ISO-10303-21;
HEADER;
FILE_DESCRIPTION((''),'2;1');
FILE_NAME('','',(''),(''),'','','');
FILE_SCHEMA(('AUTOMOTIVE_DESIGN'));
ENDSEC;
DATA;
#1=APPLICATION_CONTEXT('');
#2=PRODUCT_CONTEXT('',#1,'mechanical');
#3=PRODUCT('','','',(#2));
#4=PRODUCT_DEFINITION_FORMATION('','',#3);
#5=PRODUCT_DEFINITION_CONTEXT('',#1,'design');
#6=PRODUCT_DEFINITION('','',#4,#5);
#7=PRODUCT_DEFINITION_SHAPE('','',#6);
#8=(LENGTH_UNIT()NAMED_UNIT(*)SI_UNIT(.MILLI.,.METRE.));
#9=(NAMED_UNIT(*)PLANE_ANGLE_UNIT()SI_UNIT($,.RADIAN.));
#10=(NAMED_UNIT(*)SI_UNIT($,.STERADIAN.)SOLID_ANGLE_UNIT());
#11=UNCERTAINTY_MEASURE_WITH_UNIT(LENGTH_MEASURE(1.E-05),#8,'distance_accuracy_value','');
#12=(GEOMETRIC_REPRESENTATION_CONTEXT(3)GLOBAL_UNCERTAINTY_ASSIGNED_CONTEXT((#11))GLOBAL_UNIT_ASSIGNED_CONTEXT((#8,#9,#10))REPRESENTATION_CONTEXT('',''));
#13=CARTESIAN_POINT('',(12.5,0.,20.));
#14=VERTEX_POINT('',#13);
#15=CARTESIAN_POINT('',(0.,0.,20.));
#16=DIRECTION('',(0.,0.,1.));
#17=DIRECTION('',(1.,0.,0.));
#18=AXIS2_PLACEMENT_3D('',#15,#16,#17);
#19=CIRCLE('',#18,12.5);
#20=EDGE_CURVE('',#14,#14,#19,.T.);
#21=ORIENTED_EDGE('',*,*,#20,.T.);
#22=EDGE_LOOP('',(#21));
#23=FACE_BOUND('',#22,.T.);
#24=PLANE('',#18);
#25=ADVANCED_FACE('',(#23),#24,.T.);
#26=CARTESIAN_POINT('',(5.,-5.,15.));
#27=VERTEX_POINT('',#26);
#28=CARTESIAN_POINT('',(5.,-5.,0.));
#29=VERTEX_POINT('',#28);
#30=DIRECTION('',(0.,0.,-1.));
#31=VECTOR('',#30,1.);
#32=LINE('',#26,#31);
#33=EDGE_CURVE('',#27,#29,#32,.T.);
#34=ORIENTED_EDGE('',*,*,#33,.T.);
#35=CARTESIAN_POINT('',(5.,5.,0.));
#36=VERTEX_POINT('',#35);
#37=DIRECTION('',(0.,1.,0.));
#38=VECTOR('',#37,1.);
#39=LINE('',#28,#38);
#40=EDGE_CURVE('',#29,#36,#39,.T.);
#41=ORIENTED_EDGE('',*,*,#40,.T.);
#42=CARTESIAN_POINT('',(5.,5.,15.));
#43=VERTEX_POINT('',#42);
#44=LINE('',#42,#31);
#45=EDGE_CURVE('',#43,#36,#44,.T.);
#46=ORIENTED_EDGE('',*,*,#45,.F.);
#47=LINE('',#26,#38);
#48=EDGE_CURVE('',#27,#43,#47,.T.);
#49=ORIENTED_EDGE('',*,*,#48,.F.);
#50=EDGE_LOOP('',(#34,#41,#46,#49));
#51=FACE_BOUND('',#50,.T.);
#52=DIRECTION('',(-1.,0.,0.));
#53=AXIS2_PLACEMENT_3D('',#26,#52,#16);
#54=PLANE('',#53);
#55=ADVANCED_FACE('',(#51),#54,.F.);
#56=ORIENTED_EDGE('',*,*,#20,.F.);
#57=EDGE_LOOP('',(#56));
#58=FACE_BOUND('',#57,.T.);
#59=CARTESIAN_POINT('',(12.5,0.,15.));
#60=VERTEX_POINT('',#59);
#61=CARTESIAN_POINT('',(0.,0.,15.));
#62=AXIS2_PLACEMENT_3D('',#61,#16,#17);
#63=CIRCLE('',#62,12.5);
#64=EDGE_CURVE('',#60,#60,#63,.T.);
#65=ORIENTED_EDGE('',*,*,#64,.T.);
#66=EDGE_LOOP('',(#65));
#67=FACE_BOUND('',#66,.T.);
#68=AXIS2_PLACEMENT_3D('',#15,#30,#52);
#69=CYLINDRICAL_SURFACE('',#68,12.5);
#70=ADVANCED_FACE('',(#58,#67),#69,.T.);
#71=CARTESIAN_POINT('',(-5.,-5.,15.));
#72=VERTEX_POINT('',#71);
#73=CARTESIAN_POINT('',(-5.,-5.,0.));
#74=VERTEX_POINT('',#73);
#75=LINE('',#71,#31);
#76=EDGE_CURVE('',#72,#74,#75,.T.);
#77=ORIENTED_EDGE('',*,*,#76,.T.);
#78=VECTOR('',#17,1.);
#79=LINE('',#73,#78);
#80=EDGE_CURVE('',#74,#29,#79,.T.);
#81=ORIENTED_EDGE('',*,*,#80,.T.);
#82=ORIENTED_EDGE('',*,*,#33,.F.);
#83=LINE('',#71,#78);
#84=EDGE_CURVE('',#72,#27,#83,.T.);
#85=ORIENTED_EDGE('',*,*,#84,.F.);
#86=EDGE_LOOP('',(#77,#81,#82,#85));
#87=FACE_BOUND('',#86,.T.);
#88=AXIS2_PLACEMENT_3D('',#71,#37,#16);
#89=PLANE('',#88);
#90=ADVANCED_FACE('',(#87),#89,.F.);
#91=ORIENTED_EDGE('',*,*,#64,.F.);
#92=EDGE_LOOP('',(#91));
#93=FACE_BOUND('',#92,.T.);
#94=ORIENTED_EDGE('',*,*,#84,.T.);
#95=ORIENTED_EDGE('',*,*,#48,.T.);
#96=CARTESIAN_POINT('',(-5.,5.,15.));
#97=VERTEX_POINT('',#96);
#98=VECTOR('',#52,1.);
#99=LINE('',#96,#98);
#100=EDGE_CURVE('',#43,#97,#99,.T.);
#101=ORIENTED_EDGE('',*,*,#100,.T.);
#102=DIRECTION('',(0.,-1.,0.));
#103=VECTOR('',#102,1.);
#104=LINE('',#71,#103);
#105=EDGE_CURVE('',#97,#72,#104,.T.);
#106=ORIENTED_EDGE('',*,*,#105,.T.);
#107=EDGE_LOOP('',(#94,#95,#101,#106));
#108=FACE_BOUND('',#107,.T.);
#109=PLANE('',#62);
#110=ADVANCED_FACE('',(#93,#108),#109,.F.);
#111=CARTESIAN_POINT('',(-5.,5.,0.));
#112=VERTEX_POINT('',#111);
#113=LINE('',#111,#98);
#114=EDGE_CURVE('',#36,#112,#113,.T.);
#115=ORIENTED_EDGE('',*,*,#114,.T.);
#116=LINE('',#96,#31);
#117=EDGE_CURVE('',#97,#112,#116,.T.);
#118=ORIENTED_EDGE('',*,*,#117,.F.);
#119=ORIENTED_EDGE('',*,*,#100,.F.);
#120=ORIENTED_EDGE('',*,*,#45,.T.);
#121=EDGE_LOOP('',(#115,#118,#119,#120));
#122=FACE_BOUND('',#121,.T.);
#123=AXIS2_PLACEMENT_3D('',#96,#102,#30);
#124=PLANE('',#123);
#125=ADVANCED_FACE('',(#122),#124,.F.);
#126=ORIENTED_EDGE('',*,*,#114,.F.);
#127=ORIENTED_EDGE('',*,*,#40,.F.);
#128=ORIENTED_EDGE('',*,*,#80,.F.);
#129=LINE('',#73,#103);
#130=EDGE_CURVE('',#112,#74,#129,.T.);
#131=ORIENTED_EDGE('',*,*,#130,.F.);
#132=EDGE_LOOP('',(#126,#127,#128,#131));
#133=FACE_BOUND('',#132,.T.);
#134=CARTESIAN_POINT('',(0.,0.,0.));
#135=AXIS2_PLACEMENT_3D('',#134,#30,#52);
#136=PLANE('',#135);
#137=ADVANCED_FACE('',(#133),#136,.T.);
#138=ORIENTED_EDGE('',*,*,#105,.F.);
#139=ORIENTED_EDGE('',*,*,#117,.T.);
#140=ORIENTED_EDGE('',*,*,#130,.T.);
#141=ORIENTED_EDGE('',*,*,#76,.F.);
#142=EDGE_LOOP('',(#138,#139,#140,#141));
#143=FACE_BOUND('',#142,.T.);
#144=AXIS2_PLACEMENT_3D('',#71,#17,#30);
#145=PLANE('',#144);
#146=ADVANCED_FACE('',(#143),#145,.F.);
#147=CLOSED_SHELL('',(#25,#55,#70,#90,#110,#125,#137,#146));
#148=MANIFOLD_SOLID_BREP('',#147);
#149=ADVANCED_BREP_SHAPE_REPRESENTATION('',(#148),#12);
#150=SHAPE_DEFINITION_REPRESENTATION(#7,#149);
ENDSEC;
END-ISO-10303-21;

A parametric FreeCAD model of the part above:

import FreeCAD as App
import Part
import Sketcher

V = App.Vector


def add_polygon(sketch, points):
    """Adds a closed chain of lines whose ends are joined by coincident constraints."""
    first, n = sketch.GeometryCount, len(points)
    for a, b in zip(points, points[1:] + points[:1]):
        sketch.addGeometry(Part.LineSegment(App.Vector(*a, 0), App.Vector(*b, 0)), False)
    for i in range(n):
        sketch.addConstraint(Sketcher.Constraint("Coincident", first + i, 2, first + (i + 1) % n, 1))

doc = App.newDocument("Part")
body = doc.addObject("PartDesign::Body", "Body")

sketch1 = body.newObject("Sketcher::SketchObject", "Sketch")
sketch1.AttachmentSupport = (doc.getObject("XY_Plane"), [""])
sketch1.MapMode = "FlatFace"
add_polygon(sketch1, [(-5, 5), (-5, -5), (5, -5), (5, 5)])
sketch1.addConstraint(Sketcher.Constraint("Vertical", 0))
sketch1.addConstraint(Sketcher.Constraint("Horizontal", 1))
sketch1.addConstraint(Sketcher.Constraint("Vertical", 2))
sketch1.addConstraint(Sketcher.Constraint("Horizontal", 3))
sketch1.addConstraint(Sketcher.Constraint("Symmetric", 0, 2, 2, 2, -1, 1))
sketch1.addConstraint(Sketcher.Constraint("Equal", 3, 0))
sketch1.addConstraint(Sketcher.Constraint("DistanceX", 1, 1, 1, 2, 10.0))
pad1 = body.newObject("PartDesign::Pad", "Pad")
pad1.Profile = sketch1
pad1.Length = 15

sketch2 = body.newObject("Sketcher::SketchObject", "Sketch001")
sketch2.AttachmentSupport = (doc.getObject("XY_Plane"), [""])
sketch2.MapMode = "FlatFace"
sketch2.AttachmentOffset = App.Placement(V(0, 0, 15), App.Rotation())
sketch2.addGeometry(Part.Circle(V(0, 0, 0), V(0, 0, 1), 12), False)
sketch2.addConstraint(Sketcher.Constraint("Coincident", 0, 3, -1, 1))
sketch2.addConstraint(Sketcher.Constraint("Diameter", 0, 25.0))
pad2 = body.newObject("PartDesign::Pad", "Pad001")
pad2.Profile = sketch2
pad2.Length = 5

doc.recompute()
